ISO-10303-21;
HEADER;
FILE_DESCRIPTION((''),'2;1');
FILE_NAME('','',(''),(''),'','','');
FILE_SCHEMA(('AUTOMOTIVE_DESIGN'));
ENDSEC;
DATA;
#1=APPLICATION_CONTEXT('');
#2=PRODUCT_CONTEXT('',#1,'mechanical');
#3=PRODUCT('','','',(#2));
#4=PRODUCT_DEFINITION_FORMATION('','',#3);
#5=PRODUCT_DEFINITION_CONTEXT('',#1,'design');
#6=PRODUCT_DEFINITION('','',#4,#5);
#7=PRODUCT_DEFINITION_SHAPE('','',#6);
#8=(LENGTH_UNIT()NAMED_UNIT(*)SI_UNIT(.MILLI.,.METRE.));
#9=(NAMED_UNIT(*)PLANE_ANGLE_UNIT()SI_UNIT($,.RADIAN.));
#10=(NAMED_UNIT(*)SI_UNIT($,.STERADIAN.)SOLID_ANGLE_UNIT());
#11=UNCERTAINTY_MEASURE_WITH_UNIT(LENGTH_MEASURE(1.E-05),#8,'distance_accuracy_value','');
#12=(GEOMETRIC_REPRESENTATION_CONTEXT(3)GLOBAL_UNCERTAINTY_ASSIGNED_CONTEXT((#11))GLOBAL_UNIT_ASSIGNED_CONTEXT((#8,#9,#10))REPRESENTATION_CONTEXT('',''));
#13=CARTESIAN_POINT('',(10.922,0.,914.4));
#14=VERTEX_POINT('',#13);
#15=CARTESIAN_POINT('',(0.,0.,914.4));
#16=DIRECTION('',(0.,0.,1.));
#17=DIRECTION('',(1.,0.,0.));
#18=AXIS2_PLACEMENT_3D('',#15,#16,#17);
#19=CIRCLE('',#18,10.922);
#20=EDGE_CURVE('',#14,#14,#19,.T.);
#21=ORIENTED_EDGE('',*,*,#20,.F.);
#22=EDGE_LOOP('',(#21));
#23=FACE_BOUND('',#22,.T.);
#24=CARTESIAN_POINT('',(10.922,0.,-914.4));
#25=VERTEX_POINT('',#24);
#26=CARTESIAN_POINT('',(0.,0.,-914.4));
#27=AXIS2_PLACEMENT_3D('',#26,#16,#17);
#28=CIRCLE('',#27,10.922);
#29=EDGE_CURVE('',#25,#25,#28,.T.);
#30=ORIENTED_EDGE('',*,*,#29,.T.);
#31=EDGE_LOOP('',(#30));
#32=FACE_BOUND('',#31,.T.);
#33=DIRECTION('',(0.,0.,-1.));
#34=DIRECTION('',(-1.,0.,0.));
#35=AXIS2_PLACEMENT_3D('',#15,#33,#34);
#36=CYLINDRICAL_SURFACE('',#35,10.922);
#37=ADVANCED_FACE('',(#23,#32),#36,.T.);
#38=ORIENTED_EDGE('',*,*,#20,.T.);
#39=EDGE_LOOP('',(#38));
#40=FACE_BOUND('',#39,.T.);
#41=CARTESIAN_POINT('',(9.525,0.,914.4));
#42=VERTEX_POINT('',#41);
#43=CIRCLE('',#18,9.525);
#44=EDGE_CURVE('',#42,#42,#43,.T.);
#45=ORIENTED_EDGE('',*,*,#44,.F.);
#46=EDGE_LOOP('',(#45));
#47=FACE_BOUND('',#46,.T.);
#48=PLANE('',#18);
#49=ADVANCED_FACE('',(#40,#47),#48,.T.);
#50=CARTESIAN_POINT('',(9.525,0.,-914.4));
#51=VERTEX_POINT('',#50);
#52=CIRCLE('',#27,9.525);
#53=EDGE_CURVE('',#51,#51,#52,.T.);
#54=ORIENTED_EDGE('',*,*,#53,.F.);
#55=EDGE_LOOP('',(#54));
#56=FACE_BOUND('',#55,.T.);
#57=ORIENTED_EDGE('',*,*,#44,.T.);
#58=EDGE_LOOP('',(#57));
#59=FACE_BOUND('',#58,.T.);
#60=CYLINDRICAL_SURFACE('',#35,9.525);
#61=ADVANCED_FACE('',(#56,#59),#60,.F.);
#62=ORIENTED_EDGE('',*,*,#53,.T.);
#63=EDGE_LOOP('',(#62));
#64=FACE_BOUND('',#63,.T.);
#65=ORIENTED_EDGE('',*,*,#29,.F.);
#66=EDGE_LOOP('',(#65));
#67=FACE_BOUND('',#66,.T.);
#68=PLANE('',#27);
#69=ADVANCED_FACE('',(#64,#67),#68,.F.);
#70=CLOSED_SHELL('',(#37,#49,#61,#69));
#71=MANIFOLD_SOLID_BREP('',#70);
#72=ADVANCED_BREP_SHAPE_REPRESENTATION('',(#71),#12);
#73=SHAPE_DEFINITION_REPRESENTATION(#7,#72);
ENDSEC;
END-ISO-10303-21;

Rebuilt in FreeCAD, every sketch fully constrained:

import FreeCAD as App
import Part
import Sketcher
from FreeCAD import Vector
Q = App.Units.Quantity

doc = App.newDocument("Part")
body = doc.addObject("PartDesign::Body", "Body")

sketch1 = body.newObject("Sketcher::SketchObject", "Sketch")
sketch1.AttachmentSupport = (doc.getObject("XY_Plane"), [""])
sketch1.MapMode = "FlatFace"
sketch1.addGeometry([
    Part.Circle(Vector(0, 0, 0), Vector(0, 0, 1), 11),
    Part.Circle(Vector(0, 0, 0), Vector(0, 0, 1), 10),
], False)
sketch1.addConstraint([
    Sketcher.Constraint("Coincident", 0, 3, -1, 1),
    Sketcher.Constraint("Coincident", 1, 3, -1, 1),
    Sketcher.Constraint("Diameter", 0, Q("0.86 in")),
    Sketcher.Constraint("Diameter", 1, Q("0.75 in")),
])
pad1 = body.newObject("PartDesign::Pad", "Pad")
pad1.Profile = sketch1
pad1.Type = "TwoLengths"
pad1.Length = Q("36 in")
pad1.Length2 = Q("36 in")

doc.recompute()
